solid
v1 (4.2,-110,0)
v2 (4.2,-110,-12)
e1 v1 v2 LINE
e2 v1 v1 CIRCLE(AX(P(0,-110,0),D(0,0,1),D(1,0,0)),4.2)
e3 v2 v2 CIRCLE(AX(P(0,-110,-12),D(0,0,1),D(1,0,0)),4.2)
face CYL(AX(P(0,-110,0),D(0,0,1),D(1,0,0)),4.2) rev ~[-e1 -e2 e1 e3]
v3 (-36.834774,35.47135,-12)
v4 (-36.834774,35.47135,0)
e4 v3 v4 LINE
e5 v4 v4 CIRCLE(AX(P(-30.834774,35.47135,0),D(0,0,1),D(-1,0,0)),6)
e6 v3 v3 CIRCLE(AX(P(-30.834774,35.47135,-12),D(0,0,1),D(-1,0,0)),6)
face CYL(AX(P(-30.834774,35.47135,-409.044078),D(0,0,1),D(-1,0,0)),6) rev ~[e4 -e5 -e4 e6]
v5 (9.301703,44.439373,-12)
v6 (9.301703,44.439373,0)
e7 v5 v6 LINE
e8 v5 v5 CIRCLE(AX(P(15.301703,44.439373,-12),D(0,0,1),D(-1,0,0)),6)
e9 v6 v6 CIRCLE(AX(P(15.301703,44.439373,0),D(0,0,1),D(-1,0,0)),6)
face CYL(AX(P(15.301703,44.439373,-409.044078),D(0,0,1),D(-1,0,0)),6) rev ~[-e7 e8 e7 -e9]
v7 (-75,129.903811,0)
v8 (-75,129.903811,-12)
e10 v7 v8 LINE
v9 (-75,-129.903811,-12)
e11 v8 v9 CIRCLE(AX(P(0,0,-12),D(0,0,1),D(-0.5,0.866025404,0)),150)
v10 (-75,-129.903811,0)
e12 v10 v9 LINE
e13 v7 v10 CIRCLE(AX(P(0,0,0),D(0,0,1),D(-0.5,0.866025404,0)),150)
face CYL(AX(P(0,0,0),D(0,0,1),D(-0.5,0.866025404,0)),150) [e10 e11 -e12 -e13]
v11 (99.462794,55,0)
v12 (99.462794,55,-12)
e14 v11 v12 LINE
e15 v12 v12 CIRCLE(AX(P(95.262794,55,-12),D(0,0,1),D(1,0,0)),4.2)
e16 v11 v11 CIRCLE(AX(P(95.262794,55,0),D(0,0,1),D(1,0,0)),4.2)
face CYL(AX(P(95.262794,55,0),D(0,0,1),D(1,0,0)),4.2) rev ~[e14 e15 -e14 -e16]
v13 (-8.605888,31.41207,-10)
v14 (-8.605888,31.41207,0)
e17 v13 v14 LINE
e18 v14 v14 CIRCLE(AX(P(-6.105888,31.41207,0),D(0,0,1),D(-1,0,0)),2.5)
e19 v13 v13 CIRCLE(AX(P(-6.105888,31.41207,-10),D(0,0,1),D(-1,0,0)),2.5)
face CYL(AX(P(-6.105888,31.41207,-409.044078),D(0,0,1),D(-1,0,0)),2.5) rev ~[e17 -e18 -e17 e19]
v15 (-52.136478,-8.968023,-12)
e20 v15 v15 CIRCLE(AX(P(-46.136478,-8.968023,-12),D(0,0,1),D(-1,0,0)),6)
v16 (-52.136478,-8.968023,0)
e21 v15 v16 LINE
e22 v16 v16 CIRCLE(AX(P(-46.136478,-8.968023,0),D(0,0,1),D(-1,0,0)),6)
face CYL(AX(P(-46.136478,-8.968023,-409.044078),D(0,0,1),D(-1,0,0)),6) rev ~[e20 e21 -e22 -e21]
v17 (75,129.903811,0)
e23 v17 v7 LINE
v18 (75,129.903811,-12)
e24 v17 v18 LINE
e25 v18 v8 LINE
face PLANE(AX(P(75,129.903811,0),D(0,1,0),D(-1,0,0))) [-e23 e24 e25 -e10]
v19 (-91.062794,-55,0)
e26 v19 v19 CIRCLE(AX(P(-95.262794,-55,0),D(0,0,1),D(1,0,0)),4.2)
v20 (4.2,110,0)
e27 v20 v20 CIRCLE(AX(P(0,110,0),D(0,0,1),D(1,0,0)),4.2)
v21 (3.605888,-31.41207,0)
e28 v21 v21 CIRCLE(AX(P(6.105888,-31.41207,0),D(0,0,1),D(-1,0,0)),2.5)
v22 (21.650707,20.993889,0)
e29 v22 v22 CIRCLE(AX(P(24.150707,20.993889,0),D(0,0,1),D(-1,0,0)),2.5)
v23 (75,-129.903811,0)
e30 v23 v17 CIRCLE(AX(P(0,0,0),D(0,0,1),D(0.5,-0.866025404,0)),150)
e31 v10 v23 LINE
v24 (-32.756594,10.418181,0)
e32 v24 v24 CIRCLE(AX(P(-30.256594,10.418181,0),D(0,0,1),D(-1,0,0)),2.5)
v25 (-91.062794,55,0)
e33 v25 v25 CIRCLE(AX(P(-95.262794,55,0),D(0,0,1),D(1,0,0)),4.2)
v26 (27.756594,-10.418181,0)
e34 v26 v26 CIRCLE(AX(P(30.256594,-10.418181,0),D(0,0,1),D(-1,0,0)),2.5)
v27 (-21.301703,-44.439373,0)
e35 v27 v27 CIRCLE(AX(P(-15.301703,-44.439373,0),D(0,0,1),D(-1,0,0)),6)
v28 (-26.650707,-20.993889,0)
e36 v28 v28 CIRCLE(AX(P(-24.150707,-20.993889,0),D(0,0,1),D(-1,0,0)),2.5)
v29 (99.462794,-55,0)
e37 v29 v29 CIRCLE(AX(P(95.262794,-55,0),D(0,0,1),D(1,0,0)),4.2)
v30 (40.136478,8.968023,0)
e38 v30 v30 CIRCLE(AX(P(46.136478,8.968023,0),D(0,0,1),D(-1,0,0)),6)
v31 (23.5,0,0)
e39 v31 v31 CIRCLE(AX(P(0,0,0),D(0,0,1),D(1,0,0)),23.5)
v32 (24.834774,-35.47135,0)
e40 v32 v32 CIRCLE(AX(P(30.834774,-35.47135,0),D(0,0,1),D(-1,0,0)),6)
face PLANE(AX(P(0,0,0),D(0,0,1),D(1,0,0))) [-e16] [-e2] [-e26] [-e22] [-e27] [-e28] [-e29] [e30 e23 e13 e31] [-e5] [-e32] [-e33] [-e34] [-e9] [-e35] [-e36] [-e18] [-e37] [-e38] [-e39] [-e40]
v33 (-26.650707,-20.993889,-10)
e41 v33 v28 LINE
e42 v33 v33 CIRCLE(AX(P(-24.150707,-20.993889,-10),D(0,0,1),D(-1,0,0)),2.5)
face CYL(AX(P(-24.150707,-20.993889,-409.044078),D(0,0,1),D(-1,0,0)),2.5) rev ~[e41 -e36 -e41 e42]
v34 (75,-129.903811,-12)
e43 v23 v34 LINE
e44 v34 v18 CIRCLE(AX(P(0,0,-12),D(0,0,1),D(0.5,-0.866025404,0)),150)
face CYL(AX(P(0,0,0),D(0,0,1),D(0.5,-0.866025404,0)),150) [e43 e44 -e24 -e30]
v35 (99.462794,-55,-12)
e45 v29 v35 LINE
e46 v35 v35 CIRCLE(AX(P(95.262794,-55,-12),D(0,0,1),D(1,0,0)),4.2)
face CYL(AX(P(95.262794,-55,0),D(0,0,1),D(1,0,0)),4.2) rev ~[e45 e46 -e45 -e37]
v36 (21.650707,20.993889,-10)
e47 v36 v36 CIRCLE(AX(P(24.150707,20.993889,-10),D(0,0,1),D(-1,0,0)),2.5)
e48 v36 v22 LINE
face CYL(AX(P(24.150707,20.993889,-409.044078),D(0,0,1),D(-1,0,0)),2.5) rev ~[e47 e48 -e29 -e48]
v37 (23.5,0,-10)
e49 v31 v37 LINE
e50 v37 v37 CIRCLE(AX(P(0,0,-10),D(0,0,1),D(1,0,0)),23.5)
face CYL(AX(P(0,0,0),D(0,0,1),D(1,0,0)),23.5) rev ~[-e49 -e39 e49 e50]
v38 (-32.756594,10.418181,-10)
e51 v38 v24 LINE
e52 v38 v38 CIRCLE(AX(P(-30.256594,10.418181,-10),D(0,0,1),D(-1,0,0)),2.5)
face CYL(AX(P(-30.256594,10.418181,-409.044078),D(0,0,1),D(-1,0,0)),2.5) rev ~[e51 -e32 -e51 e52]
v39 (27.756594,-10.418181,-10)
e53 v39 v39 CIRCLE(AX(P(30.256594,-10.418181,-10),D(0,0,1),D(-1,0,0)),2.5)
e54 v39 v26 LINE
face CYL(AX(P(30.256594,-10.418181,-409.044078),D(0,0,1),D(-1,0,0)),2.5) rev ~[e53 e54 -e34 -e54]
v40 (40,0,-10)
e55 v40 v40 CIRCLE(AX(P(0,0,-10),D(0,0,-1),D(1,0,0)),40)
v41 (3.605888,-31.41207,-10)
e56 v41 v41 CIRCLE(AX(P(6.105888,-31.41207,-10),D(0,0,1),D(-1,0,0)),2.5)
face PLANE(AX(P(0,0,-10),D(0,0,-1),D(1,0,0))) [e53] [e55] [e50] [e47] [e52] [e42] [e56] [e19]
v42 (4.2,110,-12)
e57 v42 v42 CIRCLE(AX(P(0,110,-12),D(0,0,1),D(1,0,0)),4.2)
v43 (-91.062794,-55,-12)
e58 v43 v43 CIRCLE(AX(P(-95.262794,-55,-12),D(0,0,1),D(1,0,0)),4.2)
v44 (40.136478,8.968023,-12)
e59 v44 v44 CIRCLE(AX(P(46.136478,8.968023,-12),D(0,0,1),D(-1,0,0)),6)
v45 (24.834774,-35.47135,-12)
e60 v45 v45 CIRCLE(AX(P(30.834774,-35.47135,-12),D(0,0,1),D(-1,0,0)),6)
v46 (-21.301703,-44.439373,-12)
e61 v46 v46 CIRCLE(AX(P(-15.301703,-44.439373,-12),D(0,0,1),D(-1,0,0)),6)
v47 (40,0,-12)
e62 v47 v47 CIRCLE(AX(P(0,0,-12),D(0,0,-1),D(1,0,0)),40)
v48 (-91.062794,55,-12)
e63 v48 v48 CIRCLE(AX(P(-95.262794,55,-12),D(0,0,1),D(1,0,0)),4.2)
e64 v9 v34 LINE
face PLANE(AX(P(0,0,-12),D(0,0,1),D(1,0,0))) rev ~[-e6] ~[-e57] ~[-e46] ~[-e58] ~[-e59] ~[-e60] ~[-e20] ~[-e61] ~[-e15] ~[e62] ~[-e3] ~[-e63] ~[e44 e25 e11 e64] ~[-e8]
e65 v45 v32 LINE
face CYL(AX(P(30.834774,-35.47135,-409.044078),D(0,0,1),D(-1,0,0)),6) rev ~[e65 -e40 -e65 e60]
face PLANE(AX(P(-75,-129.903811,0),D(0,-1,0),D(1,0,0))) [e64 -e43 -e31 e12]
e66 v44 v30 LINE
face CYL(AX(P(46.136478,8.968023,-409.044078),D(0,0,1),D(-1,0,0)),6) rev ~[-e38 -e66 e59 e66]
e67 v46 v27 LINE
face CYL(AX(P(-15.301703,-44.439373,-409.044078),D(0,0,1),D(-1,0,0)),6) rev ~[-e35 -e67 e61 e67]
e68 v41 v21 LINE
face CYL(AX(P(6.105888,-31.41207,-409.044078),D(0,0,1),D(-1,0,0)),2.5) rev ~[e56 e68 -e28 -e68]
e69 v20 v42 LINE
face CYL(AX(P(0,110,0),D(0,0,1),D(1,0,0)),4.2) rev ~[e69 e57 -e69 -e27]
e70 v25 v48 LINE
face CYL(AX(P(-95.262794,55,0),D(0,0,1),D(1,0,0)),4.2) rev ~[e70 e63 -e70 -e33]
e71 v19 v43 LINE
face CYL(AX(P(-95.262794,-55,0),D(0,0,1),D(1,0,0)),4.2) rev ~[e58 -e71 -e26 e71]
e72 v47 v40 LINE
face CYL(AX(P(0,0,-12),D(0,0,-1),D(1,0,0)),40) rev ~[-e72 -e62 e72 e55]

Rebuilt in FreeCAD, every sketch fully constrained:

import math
import FreeCAD as App
import Part
import Sketcher
from FreeCAD import Vector
Q = App.Units.Quantity

doc = App.newDocument("Part")
body = doc.addObject("PartDesign::Body", "Body")

sketch1 = body.newObject("Sketcher::SketchObject", "Sketch")
sketch1.AttachmentSupport = (doc.getObject("XY_Plane"), [""])
sketch1.MapMode = "FlatFace"
sketch1.addGeometry([
    Part.LineSegment(Vector(75, 129.9, 0), Vector(-75, 129.9, 0)),
    Part.ArcOfCircle(Part.Circle(Vector(0, 0, 0), Vector(0, 0, 1), 150), math.radians(120), math.radians(240)),
    Part.LineSegment(Vector(-75, -129.9, 0), Vector(75, -129.9, 0)),
    Part.ArcOfCircle(Part.Circle(Vector(0, 0, 0), Vector(0, 0, 1), 150), math.radians(-60), math.radians(60)),
    Part.Circle(Vector(-95.3, -55, 0), Vector(0, 0, 1), 4.2),
    Part.Circle(Vector(0, -110, 0), Vector(0, 0, 1), 4.2),
    Part.Circle(Vector(95.3, -55, 0), Vector(0, 0, 1), 4.2),
    Part.Circle(Vector(-95.3, 55, 0), Vector(0, 0, 1), 4.2),
    Part.Circle(Vector(0, 0, 0), Vector(0, 0, 1), 23.5),
    Part.Circle(Vector(95.3, 55, 0), Vector(0, 0, 1), 4.2),
    Part.Circle(Vector(0, 110, 0), Vector(0, 0, 1), 4.2),
], False)
sketch1.addConstraint([
    Sketcher.Constraint("Coincident", 0, 2, 1, 1),
    Sketcher.Constraint("Coincident", 1, 2, 2, 1),
    Sketcher.Constraint("Coincident", 2, 2, 3, 1),
    Sketcher.Constraint("Coincident", 3, 2, 0, 1),
    Sketcher.Constraint("Horizontal", 0),
    Sketcher.Constraint("Horizontal", 2),
    Sketcher.Constraint("Coincident", 1, 3, -1, 1),
    Sketcher.Constraint("Coincident", 3, 3, -1, 1),
    Sketcher.Constraint("Coincident", 8, 3, -1, 1),
    Sketcher.Constraint("Equal", 1, 3),
    Sketcher.Constraint("Equal", 4, 5),
    Sketcher.Constraint("Equal", 5, 6),
    Sketcher.Constraint("Equal", 6, 7),
    Sketcher.Constraint("Equal", 7, 9),
    Sketcher.Constraint("Equal", 9, 10),
    Sketcher.Constraint("Symmetric", 6, 3, 7, 3, -1, 1),
    Sketcher.Constraint("Symmetric", 4, 3, 9, 3, -1, 1),
    Sketcher.Constraint("Symmetric", 5, 3, 10, 3, -1, 1),
    Sketcher.Constraint("Symmetric", 4, 3, 6, 3, -2),
    Sketcher.Constraint("PointOnObject", 5, 3, -2),
    Sketcher.Constraint("Vertical", 0, 2, 1, 2),
    Sketcher.Constraint("Diameter", 8, Q("47 mm")),
    Sketcher.Constraint("Radius", 1, Q("150 mm")),
    Sketcher.Constraint("Diameter", 4, Q("8.4 mm")),
    Sketcher.Constraint("DistanceX", 0, 2, 0, 1, Q("150 mm")),
    Sketcher.Constraint("DistanceY", 4, 3, -1, 1, Q("55 mm")),
    Sketcher.Constraint("DistanceY", 5, 3, -1, 1, Q("110 mm")),
    Sketcher.Constraint("DistanceX", 4, 3, 6, 3, Q("190.525589 mm")),
])
pad1 = body.newObject("PartDesign::Pad", "Pad")
pad1.Profile = sketch1
pad1.Length = 12
pad1.Reversed = True

sketch2 = body.newObject("Sketcher::SketchObject", "Sketch001")
sketch2.AttachmentSupport = (doc.getObject("XY_Plane"), [""])
sketch2.MapMode = "FlatFace"
sketch2.AttachmentOffset = App.Placement(Vector(0, 0, -12), App.Rotation())
sketch2.addGeometry(Part.Circle(Vector(0, 0, 0), Vector(0, 0, 1), 40), False)
sketch2.addConstraint([
    Sketcher.Constraint("Coincident", 0, 3, -1, 1),
    Sketcher.Constraint("Diameter", 0, Q("80 mm")),
])
pocket1 = body.newObject("PartDesign::Pocket", "Pocket")
pocket1.Profile = sketch2
pocket1.Type = "TwoLengths"
pocket1.Length = 2
pocket1.Length2 = 10
pocket1.Reversed = True

sketch3 = body.newObject("Sketcher::SketchObject", "Sketch002")
sketch3.AttachmentSupport = (doc.getObject("XY_Plane"), [""])
sketch3.MapMode = "FlatFace"
sketch3.AttachmentOffset = App.Placement(Vector(0, 0, -12), App.Rotation())
sketch3.addGeometry([
    Part.Circle(Vector(6.1, -31.4, 0), Vector(0, 0, 1), 2.5),
    Part.Circle(Vector(-24.2, -21, 0), Vector(0, 0, 1), 2.5),
    Part.Circle(Vector(-30.3, 10.4, 0), Vector(0, 0, 1), 2.5),
    Part.Circle(Vector(-6.1, 31.4, 0), Vector(0, 0, 1), 2.5),
    Part.Circle(Vector(24.2, 21, 0), Vector(0, 0, 1), 2.5),
    Part.Circle(Vector(30.3, -10.4, 0), Vector(0, 0, 1), 2.5),
], False)
sketch3.addConstraint([
    Sketcher.Constraint("Equal", 0, 1),
    Sketcher.Constraint("Equal", 1, 2),
    Sketcher.Constraint("Equal", 2, 3),
    Sketcher.Constraint("Equal", 3, 4),
    Sketcher.Constraint("Equal", 4, 5),
    Sketcher.Constraint("Symmetric", 0, 3, 3, 3, -1, 1),
    Sketcher.Constraint("Symmetric", 1, 3, 4, 3, -1, 1),
    Sketcher.Constraint("Symmetric", 2, 3, 5, 3, -1, 1),
    Sketcher.Constraint("Diameter", 0, Q("5 mm")),
    Sketcher.Constraint("DistanceX", 2, 3, 4, 3, Q("54.407301 mm")),
    Sketcher.Constraint("DistanceY", 0, 3, -1, 1, Q("31.41207 mm")),
    Sketcher.Constraint("DistanceY", 1, 3, -1, 1, Q("20.993889 mm")),
    Sketcher.Constraint("DistanceY", -1, 1, 2, 3, Q("10.418181 mm")),
    Sketcher.Constraint("DistanceX", 1, 3, 3, 3, Q("18.044819 mm")),
    Sketcher.Constraint("DistanceX", 2, 3, 5, 3, Q("60.513189 mm")),
])
doc.recompute()
hole = body.newObject("PartDesign::Hole", "Hole")
hole.Profile = sketch3
hole.ThreadType = "None"
hole.Diameter = 5
hole.DepthType = "ThroughAll"
hole.Reversed = True

sketch4 = body.newObject("Sketcher::SketchObject", "Sketch003")
sketch4.AttachmentSupport = (doc.getObject("XY_Plane"), [""])
sketch4.MapMode = "FlatFace"
sketch4.AttachmentOffset = App.Placement(Vector(0, 0, -12), App.Rotation())
sketch4.addGeometry([
    Part.Circle(Vector(-31, 35, 0), Vector(0, 0, 1), 6),
    Part.Circle(Vector(15, 44, 0), Vector(0, 0, 1), 6),
    Part.Circle(Vector(46, 9, 0), Vector(0, 0, 1), 6),
    Part.Circle(Vector(31, -35, 0), Vector(0, 0, 1), 6),
    Part.Circle(Vector(-15, -44, 0), Vector(0, 0, 1), 6),
    Part.Circle(Vector(-46, -9, 0), Vector(0, 0, 1), 6),
], False)
sketch4.addConstraint([
    Sketcher.Constraint("Equal", 0, 1),
    Sketcher.Constraint("Equal", 1, 2),
    Sketcher.Constraint("Equal", 2, 3),
    Sketcher.Constraint("Equal", 3, 4),
    Sketcher.Constraint("Equal", 4, 5),
    Sketcher.Constraint("Symmetric", 0, 3, 3, 3, -1, 1),
    Sketcher.Constraint("Symmetric", 1, 3, 4, 3, -1, 1),
    Sketcher.Constraint("Symmetric", 2, 3, 5, 3, -1, 1),
    Sketcher.Constraint("Diameter", 0, Q("12 mm")),
    Sketcher.Constraint("DistanceY", 3, 3, 0, 3, Q("70.942701 mm")),
    Sketcher.Constraint("DistanceY", 2, 3, 1, 3, Q("35.47135 mm")),
    Sketcher.Constraint("DistanceX", 0, 3, 2, 3, Q("76.971252 mm")),
    Sketcher.Constraint("DistanceX", 1, 3, 3, 3, Q("15.533071 mm")),
    Sketcher.Constraint("DistanceX", 0, 3, 3, 3, Q("61.669549 mm")),
    Sketcher.Constraint("DistanceY", -1, 1, 1, 3, Q("44.439373 mm")),
])
doc.recompute()
hole2 = body.newObject("PartDesign::Hole", "Hole001")
hole2.Profile = sketch4
hole2.ThreadType = "None"
hole2.Diameter = 12
hole2.DepthType = "ThroughAll"
hole2.Reversed = True

doc.recompute()
